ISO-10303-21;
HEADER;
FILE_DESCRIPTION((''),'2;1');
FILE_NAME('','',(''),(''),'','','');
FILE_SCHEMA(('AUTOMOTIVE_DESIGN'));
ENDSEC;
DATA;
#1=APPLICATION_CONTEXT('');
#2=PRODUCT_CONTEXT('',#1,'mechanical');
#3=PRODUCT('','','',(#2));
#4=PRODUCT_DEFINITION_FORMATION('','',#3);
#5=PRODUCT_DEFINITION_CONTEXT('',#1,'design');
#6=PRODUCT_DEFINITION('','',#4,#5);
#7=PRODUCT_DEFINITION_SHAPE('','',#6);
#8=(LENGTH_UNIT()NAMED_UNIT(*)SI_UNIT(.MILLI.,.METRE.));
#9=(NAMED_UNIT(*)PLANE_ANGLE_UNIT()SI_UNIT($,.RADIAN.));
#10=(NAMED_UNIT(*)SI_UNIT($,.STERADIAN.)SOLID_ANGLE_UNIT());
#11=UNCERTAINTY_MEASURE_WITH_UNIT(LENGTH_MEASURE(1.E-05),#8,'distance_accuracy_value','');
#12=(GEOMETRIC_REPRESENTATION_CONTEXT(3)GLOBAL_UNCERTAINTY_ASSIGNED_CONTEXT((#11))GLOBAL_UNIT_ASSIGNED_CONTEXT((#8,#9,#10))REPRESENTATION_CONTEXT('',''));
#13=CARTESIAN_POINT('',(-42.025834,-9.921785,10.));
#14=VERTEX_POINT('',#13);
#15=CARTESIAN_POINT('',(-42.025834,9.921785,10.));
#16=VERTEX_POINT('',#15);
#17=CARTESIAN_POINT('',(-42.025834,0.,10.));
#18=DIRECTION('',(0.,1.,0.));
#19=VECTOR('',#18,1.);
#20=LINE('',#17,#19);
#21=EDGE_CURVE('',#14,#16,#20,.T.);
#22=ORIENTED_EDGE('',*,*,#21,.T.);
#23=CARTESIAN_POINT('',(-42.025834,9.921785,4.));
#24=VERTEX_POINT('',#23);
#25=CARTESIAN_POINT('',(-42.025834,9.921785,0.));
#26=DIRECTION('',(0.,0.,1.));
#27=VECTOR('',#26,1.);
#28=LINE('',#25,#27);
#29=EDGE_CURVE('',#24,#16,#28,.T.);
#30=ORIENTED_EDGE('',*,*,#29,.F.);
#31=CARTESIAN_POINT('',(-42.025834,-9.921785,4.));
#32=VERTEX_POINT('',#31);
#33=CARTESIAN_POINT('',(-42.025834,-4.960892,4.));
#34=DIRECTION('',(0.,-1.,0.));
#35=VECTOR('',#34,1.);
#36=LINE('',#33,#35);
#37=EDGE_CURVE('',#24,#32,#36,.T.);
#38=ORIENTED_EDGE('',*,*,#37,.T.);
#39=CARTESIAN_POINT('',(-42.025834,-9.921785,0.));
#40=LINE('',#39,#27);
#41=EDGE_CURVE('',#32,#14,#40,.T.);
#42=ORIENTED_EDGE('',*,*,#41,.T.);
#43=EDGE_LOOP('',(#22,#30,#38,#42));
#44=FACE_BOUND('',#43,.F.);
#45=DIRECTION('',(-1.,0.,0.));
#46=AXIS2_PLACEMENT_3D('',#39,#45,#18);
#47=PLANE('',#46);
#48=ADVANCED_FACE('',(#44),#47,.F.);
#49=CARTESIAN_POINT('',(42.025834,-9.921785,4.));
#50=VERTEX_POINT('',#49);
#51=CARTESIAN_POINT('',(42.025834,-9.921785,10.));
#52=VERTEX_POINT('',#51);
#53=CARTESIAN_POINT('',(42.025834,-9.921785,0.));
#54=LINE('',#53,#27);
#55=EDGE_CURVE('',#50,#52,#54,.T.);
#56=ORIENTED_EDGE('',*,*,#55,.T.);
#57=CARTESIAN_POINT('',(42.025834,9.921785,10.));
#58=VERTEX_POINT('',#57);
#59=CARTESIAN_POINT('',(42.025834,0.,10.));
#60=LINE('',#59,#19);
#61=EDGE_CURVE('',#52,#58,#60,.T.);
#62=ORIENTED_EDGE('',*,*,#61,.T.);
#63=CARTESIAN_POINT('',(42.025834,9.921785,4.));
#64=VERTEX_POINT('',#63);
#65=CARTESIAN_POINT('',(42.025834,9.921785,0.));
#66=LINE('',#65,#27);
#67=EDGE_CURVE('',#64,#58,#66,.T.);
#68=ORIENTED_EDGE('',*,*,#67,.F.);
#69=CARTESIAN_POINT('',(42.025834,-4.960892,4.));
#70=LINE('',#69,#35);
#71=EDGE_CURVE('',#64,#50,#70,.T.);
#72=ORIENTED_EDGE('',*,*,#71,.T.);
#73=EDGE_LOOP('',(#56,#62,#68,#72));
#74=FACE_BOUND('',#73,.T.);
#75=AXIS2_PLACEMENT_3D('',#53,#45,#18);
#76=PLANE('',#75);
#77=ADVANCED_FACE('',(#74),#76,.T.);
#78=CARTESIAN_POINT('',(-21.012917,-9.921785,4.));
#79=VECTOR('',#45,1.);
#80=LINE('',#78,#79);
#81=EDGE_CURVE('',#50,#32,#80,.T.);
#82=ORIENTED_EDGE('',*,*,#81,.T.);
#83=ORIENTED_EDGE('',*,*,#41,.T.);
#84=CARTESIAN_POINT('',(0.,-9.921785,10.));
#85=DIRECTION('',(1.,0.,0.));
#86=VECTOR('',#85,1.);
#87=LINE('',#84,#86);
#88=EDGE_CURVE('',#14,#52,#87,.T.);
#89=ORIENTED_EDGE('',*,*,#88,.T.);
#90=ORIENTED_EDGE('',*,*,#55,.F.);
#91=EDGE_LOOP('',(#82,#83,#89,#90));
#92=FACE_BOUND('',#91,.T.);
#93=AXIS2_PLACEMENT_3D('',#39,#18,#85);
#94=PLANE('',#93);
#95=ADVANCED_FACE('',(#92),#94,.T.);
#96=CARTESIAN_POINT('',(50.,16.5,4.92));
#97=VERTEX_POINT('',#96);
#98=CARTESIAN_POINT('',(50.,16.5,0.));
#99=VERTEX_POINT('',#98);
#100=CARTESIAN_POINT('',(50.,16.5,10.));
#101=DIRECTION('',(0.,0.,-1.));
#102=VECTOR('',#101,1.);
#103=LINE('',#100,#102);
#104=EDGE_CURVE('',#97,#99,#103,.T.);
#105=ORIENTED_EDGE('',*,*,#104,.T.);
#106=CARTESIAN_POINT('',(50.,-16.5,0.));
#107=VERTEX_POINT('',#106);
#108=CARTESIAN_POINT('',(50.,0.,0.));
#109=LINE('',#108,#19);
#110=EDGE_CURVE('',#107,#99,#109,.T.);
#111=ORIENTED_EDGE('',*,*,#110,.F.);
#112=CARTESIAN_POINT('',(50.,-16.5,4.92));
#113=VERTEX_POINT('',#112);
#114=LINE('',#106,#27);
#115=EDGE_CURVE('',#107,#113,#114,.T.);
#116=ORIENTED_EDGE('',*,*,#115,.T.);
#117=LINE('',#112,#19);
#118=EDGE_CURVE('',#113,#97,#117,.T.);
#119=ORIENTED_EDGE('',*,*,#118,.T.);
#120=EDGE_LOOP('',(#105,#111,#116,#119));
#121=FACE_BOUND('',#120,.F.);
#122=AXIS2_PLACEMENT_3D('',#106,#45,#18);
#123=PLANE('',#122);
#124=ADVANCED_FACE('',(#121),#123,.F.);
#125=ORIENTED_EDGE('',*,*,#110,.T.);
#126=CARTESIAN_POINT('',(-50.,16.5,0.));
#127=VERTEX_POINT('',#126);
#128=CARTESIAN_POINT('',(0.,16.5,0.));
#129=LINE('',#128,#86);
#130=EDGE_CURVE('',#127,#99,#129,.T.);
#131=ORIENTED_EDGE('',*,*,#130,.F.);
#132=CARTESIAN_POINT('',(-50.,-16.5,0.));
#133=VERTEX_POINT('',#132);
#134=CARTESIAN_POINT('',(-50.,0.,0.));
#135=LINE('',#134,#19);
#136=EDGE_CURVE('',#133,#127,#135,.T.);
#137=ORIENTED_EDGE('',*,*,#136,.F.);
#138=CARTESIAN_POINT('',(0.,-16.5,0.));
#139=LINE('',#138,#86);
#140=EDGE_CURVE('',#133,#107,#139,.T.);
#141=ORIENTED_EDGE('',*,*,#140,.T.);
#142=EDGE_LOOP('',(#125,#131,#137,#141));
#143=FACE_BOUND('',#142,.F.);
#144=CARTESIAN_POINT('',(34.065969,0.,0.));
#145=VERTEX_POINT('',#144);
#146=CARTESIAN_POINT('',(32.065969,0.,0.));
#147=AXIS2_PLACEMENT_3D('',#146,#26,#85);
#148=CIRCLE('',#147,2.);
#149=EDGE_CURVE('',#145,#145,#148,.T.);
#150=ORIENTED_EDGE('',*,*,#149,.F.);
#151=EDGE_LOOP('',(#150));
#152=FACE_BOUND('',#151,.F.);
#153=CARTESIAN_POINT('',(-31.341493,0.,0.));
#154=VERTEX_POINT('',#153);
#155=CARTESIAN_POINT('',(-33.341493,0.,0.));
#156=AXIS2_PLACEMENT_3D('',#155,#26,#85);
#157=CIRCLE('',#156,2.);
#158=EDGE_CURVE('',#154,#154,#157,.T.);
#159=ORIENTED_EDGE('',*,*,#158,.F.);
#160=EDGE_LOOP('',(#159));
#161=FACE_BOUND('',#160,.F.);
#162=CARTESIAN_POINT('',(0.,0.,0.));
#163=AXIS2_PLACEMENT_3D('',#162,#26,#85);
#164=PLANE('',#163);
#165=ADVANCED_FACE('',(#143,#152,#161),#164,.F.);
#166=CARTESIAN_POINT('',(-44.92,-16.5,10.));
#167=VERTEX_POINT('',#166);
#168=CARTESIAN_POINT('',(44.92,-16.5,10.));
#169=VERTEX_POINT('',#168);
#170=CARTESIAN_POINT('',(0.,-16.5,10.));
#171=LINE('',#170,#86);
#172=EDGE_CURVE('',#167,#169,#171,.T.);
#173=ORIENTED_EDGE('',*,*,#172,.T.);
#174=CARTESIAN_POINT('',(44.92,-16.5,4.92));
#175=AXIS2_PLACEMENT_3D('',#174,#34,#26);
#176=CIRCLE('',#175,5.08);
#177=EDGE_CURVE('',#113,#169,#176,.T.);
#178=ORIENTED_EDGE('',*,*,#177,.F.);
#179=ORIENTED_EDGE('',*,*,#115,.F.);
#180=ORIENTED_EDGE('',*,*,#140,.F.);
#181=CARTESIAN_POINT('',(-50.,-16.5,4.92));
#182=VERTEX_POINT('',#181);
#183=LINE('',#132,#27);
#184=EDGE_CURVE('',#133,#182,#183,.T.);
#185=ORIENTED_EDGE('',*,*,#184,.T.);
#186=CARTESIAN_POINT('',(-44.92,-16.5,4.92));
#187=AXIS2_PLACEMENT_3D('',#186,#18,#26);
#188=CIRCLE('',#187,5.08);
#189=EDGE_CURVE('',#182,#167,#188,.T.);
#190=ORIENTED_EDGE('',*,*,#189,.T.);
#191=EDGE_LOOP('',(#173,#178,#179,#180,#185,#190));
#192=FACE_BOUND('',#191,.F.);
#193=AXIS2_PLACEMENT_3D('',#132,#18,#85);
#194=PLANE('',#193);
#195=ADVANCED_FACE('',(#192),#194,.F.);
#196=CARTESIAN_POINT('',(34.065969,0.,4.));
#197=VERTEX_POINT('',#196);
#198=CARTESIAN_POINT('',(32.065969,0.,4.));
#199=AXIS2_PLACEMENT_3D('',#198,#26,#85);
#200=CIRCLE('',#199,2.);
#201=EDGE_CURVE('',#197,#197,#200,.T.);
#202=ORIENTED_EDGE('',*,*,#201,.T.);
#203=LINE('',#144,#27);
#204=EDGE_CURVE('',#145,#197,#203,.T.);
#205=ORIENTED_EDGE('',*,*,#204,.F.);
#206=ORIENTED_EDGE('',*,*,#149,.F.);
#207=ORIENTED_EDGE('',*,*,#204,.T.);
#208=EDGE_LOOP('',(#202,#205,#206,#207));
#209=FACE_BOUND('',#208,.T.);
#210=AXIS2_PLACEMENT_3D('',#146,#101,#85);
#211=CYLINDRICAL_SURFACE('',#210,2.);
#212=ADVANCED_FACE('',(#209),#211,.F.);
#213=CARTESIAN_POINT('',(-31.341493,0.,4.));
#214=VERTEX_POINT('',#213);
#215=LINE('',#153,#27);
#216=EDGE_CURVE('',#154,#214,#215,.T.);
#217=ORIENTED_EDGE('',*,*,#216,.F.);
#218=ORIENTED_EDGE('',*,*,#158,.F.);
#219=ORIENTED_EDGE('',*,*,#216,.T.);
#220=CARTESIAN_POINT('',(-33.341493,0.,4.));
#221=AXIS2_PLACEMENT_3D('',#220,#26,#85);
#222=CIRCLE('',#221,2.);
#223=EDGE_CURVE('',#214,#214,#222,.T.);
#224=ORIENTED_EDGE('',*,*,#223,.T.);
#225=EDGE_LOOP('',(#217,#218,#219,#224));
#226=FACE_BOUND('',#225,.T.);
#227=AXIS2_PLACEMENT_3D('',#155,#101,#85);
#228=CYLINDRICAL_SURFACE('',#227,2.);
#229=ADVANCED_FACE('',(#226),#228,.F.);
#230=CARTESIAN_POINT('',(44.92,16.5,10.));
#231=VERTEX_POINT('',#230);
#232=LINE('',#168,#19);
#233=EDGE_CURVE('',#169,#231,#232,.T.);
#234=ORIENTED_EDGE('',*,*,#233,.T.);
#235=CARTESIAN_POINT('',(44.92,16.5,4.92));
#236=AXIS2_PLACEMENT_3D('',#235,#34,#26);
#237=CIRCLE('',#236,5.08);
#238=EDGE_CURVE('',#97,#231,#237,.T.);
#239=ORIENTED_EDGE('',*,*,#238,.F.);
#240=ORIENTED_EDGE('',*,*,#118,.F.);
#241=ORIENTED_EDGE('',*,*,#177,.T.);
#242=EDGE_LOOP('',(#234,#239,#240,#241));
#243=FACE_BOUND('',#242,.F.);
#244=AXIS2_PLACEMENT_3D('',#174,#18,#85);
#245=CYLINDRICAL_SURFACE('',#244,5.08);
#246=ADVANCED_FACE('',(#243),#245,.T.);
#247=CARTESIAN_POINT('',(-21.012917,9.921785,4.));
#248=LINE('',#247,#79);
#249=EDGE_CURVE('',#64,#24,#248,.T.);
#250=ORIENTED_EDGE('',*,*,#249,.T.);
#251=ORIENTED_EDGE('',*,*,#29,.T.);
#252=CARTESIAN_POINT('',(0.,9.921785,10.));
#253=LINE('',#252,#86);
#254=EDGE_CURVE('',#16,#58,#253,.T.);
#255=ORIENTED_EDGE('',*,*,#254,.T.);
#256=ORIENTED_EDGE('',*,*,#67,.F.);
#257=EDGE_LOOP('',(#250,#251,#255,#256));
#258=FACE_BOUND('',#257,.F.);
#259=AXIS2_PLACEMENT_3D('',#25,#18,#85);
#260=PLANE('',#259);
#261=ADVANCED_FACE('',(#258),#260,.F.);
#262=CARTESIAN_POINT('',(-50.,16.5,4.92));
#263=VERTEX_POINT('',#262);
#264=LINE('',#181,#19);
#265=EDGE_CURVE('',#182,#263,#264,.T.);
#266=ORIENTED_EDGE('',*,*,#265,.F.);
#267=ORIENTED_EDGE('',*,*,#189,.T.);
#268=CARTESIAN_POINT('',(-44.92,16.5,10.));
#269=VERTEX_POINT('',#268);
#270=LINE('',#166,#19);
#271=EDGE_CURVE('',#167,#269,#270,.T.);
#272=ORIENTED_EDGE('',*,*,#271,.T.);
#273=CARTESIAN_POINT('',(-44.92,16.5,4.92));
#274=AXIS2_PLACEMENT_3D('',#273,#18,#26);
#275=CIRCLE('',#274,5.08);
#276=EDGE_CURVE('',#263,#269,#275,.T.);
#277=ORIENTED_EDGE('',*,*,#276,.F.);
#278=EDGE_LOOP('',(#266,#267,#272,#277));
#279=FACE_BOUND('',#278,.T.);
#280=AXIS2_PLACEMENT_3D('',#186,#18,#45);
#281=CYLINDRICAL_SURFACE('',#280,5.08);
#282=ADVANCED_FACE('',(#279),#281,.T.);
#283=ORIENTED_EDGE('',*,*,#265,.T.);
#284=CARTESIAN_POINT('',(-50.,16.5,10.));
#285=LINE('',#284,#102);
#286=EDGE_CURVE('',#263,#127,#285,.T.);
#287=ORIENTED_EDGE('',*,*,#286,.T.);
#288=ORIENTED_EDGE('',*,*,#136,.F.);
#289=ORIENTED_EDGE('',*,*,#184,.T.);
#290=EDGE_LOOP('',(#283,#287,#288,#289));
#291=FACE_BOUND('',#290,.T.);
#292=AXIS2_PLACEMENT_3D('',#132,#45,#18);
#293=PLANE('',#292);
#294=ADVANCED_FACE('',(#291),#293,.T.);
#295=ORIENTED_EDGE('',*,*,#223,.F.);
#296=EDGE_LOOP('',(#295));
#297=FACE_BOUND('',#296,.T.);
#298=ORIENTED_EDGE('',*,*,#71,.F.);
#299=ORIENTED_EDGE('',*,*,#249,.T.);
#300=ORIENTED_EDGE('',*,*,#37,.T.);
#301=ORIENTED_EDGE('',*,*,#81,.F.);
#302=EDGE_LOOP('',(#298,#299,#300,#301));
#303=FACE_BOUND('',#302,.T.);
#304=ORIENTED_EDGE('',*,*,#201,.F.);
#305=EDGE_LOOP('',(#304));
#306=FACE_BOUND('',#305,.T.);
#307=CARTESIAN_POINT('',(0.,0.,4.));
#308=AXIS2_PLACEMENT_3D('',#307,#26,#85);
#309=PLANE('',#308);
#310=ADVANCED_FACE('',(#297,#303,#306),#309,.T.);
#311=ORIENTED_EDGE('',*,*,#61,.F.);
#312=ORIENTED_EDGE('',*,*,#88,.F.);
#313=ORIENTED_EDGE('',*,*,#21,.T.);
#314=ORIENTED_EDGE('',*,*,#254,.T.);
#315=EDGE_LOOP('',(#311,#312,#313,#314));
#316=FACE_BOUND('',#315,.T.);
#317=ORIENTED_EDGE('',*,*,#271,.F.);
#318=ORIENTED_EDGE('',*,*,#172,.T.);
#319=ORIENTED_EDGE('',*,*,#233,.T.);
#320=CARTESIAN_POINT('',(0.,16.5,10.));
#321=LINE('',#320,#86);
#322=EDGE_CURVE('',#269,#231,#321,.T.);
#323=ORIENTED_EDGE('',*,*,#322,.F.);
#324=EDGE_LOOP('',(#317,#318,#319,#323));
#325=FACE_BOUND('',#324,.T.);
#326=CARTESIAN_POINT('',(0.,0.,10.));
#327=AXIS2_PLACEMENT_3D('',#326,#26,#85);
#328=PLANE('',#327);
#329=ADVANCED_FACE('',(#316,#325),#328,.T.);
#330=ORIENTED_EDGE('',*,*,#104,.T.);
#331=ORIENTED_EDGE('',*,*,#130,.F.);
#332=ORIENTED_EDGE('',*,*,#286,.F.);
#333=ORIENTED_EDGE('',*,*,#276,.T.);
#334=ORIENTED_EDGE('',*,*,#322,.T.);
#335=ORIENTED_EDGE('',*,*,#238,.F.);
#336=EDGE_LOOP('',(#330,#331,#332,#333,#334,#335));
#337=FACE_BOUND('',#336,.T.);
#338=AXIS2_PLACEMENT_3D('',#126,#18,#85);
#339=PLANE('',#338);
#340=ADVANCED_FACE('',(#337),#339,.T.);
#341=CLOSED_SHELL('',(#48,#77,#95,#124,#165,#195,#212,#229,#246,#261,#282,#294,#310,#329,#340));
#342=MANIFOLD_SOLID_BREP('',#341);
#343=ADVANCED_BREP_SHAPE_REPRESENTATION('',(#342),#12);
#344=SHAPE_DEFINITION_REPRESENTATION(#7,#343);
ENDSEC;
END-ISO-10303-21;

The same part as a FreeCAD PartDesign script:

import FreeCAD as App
import Part
import Sketcher

V = App.Vector


def edges_at(feature, points):
    """Names of the edges that pass closest to the given points."""
    edges = feature.Shape.Edges
    near = lambda p: min(range(len(edges)), key=lambda i: edges[i].distToShape(Part.Vertex(*p))[0])
    return sorted({f"Edge{near(p) + 1}" for p in points})


def add_polygon(sketch, points):
    """Adds a closed chain of lines whose ends are joined by coincident constraints."""
    first, n = sketch.GeometryCount, len(points)
    for a, b in zip(points, points[1:] + points[:1]):
        sketch.addGeometry(Part.LineSegment(App.Vector(*a, 0), App.Vector(*b, 0)), False)
    for i in range(n):
        sketch.addConstraint(Sketcher.Constraint("Coincident", first + i, 2, first + (i + 1) % n, 1))

doc = App.newDocument("Part")
params = doc.addObject("Spreadsheet::Sheet", "Params")
for row, (alias, value) in enumerate([
    ("sketch1_diameter", "4 mm"),
    ("sketch1_width", "100 mm"),
    ("sketch1_height", "33 mm"),
    ("pad1_length", "4 mm"),
    ("sketch2_width", "100 mm"),
    ("sketch2_height", "33 mm"),
    ("pad2_length", "10 mm"),
    ("fillet_radius", "5.08 mm"),
], start=1):
    params.set(f"A{row}", alias)
    params.set(f"B{row}", "=" + value)
    params.setAlias(f"B{row}", alias)

body = doc.addObject("PartDesign::Body", "Body")

# Sketch on XY plane
sketch1 = doc.addObject("Sketcher::SketchObject", "Sketch")
body.addObject(sketch1)
sketch1.AttachmentSupport = (doc.XY_Plane, [""])
sketch1.MapMode = "FlatFace"
add_polygon(sketch1, [(-50, 16.5), (-50, -16.5), (50, -16.5), (50, 16.5)])  # lines 0-3
sketch1.addGeometry(Part.Circle(V(-33.3, 0, 0), V(0, 0, 1), 2), False)  # 4
sketch1.addGeometry(Part.Circle(V(32.1, 0, 0), V(0, 0, 1), 2), False)  # 5
sketch1.addConstraint([
    Sketcher.Constraint("Vertical", 0),
    Sketcher.Constraint("Horizontal", 1),
    Sketcher.Constraint("Vertical", 2),
    Sketcher.Constraint("Horizontal", 3),
    Sketcher.Constraint("Equal", 4, 5),
    Sketcher.Constraint("Symmetric", 0, 2, 2, 2, -1, 1),
    Sketcher.Constraint("PointOnObject", 4, 3, -1),
    Sketcher.Constraint("PointOnObject", 5, 3, -1),
    Sketcher.Constraint("Diameter", 4, 4.0),
    Sketcher.Constraint("DistanceX", 1, 1, 1, 2, 100.0),
    Sketcher.Constraint("DistanceY", 0, 2, 0, 1, 33.0),
    Sketcher.Constraint("DistanceX", -1, 1, 5, 3, 32.065969),
    Sketcher.Constraint("DistanceX", 4, 3, -1, 1, 33.341493),
])
sketch1.setExpression("Constraints[12]", "Params.sketch1_diameter")
sketch1.setExpression("Constraints[13]", "Params.sketch1_width")
sketch1.setExpression("Constraints[14]", "Params.sketch1_height")
pad1 = doc.addObject("PartDesign::Pad", "Pad")
body.addObject(pad1)
pad1.Profile = sketch1
pad1.setExpression("Length", "Params.pad1_length")

# Sketch on XY plane
sketch2 = doc.addObject("Sketcher::SketchObject", "Sketch001")
body.addObject(sketch2)
sketch2.AttachmentSupport = (doc.XY_Plane, [""])
sketch2.MapMode = "FlatFace"
add_polygon(sketch2, [(-50, 16), (-50, -16), (50, -16), (50, 16)])  # lines 0-3
add_polygon(sketch2, [(42, -10), (-42, -10), (-42, 10), (42, 10)])  # lines 4-7
sketch2.addConstraint([
    Sketcher.Constraint("Vertical", 0),
    Sketcher.Constraint("Horizontal", 1),
    Sketcher.Constraint("Vertical", 2),
    Sketcher.Constraint("Horizontal", 3),
    Sketcher.Constraint("Horizontal", 4),
    Sketcher.Constraint("Vertical", 5),
    Sketcher.Constraint("Horizontal", 6),
    Sketcher.Constraint("Vertical", 7),
    Sketcher.Constraint("Symmetric", 0, 2, 2, 2, -1, 1),
    Sketcher.Constraint("Symmetric", 4, 2, 6, 2, -1, 1),
    Sketcher.Constraint("DistanceX", 1, 1, 1, 2, 100.0),
    Sketcher.Constraint("DistanceY", 0, 2, 0, 1, 33.0),
    Sketcher.Constraint("DistanceX", 4, 2, 4, 1, 84.051668),
    Sketcher.Constraint("DistanceY", 5, 1, 5, 2, 19.84357),
])
sketch2.setExpression("Constraints[18]", "Params.sketch2_width")
sketch2.setExpression("Constraints[19]", "Params.sketch2_height")
pad2 = doc.addObject("PartDesign::Pad", "Pad001")
body.addObject(pad2)
pad2.Profile = sketch2
pad2.setExpression("Length", "Params.pad2_length")
doc.recompute()

fillet = doc.addObject("PartDesign::Fillet", "Fillet")
body.addObject(fillet)
fillet.Base = (pad2, edges_at(pad2, [(-50, 0, 10), (50, 0, 10)]))
fillet.setExpression("Radius", "Params.fillet_radius")

doc.recompute()
